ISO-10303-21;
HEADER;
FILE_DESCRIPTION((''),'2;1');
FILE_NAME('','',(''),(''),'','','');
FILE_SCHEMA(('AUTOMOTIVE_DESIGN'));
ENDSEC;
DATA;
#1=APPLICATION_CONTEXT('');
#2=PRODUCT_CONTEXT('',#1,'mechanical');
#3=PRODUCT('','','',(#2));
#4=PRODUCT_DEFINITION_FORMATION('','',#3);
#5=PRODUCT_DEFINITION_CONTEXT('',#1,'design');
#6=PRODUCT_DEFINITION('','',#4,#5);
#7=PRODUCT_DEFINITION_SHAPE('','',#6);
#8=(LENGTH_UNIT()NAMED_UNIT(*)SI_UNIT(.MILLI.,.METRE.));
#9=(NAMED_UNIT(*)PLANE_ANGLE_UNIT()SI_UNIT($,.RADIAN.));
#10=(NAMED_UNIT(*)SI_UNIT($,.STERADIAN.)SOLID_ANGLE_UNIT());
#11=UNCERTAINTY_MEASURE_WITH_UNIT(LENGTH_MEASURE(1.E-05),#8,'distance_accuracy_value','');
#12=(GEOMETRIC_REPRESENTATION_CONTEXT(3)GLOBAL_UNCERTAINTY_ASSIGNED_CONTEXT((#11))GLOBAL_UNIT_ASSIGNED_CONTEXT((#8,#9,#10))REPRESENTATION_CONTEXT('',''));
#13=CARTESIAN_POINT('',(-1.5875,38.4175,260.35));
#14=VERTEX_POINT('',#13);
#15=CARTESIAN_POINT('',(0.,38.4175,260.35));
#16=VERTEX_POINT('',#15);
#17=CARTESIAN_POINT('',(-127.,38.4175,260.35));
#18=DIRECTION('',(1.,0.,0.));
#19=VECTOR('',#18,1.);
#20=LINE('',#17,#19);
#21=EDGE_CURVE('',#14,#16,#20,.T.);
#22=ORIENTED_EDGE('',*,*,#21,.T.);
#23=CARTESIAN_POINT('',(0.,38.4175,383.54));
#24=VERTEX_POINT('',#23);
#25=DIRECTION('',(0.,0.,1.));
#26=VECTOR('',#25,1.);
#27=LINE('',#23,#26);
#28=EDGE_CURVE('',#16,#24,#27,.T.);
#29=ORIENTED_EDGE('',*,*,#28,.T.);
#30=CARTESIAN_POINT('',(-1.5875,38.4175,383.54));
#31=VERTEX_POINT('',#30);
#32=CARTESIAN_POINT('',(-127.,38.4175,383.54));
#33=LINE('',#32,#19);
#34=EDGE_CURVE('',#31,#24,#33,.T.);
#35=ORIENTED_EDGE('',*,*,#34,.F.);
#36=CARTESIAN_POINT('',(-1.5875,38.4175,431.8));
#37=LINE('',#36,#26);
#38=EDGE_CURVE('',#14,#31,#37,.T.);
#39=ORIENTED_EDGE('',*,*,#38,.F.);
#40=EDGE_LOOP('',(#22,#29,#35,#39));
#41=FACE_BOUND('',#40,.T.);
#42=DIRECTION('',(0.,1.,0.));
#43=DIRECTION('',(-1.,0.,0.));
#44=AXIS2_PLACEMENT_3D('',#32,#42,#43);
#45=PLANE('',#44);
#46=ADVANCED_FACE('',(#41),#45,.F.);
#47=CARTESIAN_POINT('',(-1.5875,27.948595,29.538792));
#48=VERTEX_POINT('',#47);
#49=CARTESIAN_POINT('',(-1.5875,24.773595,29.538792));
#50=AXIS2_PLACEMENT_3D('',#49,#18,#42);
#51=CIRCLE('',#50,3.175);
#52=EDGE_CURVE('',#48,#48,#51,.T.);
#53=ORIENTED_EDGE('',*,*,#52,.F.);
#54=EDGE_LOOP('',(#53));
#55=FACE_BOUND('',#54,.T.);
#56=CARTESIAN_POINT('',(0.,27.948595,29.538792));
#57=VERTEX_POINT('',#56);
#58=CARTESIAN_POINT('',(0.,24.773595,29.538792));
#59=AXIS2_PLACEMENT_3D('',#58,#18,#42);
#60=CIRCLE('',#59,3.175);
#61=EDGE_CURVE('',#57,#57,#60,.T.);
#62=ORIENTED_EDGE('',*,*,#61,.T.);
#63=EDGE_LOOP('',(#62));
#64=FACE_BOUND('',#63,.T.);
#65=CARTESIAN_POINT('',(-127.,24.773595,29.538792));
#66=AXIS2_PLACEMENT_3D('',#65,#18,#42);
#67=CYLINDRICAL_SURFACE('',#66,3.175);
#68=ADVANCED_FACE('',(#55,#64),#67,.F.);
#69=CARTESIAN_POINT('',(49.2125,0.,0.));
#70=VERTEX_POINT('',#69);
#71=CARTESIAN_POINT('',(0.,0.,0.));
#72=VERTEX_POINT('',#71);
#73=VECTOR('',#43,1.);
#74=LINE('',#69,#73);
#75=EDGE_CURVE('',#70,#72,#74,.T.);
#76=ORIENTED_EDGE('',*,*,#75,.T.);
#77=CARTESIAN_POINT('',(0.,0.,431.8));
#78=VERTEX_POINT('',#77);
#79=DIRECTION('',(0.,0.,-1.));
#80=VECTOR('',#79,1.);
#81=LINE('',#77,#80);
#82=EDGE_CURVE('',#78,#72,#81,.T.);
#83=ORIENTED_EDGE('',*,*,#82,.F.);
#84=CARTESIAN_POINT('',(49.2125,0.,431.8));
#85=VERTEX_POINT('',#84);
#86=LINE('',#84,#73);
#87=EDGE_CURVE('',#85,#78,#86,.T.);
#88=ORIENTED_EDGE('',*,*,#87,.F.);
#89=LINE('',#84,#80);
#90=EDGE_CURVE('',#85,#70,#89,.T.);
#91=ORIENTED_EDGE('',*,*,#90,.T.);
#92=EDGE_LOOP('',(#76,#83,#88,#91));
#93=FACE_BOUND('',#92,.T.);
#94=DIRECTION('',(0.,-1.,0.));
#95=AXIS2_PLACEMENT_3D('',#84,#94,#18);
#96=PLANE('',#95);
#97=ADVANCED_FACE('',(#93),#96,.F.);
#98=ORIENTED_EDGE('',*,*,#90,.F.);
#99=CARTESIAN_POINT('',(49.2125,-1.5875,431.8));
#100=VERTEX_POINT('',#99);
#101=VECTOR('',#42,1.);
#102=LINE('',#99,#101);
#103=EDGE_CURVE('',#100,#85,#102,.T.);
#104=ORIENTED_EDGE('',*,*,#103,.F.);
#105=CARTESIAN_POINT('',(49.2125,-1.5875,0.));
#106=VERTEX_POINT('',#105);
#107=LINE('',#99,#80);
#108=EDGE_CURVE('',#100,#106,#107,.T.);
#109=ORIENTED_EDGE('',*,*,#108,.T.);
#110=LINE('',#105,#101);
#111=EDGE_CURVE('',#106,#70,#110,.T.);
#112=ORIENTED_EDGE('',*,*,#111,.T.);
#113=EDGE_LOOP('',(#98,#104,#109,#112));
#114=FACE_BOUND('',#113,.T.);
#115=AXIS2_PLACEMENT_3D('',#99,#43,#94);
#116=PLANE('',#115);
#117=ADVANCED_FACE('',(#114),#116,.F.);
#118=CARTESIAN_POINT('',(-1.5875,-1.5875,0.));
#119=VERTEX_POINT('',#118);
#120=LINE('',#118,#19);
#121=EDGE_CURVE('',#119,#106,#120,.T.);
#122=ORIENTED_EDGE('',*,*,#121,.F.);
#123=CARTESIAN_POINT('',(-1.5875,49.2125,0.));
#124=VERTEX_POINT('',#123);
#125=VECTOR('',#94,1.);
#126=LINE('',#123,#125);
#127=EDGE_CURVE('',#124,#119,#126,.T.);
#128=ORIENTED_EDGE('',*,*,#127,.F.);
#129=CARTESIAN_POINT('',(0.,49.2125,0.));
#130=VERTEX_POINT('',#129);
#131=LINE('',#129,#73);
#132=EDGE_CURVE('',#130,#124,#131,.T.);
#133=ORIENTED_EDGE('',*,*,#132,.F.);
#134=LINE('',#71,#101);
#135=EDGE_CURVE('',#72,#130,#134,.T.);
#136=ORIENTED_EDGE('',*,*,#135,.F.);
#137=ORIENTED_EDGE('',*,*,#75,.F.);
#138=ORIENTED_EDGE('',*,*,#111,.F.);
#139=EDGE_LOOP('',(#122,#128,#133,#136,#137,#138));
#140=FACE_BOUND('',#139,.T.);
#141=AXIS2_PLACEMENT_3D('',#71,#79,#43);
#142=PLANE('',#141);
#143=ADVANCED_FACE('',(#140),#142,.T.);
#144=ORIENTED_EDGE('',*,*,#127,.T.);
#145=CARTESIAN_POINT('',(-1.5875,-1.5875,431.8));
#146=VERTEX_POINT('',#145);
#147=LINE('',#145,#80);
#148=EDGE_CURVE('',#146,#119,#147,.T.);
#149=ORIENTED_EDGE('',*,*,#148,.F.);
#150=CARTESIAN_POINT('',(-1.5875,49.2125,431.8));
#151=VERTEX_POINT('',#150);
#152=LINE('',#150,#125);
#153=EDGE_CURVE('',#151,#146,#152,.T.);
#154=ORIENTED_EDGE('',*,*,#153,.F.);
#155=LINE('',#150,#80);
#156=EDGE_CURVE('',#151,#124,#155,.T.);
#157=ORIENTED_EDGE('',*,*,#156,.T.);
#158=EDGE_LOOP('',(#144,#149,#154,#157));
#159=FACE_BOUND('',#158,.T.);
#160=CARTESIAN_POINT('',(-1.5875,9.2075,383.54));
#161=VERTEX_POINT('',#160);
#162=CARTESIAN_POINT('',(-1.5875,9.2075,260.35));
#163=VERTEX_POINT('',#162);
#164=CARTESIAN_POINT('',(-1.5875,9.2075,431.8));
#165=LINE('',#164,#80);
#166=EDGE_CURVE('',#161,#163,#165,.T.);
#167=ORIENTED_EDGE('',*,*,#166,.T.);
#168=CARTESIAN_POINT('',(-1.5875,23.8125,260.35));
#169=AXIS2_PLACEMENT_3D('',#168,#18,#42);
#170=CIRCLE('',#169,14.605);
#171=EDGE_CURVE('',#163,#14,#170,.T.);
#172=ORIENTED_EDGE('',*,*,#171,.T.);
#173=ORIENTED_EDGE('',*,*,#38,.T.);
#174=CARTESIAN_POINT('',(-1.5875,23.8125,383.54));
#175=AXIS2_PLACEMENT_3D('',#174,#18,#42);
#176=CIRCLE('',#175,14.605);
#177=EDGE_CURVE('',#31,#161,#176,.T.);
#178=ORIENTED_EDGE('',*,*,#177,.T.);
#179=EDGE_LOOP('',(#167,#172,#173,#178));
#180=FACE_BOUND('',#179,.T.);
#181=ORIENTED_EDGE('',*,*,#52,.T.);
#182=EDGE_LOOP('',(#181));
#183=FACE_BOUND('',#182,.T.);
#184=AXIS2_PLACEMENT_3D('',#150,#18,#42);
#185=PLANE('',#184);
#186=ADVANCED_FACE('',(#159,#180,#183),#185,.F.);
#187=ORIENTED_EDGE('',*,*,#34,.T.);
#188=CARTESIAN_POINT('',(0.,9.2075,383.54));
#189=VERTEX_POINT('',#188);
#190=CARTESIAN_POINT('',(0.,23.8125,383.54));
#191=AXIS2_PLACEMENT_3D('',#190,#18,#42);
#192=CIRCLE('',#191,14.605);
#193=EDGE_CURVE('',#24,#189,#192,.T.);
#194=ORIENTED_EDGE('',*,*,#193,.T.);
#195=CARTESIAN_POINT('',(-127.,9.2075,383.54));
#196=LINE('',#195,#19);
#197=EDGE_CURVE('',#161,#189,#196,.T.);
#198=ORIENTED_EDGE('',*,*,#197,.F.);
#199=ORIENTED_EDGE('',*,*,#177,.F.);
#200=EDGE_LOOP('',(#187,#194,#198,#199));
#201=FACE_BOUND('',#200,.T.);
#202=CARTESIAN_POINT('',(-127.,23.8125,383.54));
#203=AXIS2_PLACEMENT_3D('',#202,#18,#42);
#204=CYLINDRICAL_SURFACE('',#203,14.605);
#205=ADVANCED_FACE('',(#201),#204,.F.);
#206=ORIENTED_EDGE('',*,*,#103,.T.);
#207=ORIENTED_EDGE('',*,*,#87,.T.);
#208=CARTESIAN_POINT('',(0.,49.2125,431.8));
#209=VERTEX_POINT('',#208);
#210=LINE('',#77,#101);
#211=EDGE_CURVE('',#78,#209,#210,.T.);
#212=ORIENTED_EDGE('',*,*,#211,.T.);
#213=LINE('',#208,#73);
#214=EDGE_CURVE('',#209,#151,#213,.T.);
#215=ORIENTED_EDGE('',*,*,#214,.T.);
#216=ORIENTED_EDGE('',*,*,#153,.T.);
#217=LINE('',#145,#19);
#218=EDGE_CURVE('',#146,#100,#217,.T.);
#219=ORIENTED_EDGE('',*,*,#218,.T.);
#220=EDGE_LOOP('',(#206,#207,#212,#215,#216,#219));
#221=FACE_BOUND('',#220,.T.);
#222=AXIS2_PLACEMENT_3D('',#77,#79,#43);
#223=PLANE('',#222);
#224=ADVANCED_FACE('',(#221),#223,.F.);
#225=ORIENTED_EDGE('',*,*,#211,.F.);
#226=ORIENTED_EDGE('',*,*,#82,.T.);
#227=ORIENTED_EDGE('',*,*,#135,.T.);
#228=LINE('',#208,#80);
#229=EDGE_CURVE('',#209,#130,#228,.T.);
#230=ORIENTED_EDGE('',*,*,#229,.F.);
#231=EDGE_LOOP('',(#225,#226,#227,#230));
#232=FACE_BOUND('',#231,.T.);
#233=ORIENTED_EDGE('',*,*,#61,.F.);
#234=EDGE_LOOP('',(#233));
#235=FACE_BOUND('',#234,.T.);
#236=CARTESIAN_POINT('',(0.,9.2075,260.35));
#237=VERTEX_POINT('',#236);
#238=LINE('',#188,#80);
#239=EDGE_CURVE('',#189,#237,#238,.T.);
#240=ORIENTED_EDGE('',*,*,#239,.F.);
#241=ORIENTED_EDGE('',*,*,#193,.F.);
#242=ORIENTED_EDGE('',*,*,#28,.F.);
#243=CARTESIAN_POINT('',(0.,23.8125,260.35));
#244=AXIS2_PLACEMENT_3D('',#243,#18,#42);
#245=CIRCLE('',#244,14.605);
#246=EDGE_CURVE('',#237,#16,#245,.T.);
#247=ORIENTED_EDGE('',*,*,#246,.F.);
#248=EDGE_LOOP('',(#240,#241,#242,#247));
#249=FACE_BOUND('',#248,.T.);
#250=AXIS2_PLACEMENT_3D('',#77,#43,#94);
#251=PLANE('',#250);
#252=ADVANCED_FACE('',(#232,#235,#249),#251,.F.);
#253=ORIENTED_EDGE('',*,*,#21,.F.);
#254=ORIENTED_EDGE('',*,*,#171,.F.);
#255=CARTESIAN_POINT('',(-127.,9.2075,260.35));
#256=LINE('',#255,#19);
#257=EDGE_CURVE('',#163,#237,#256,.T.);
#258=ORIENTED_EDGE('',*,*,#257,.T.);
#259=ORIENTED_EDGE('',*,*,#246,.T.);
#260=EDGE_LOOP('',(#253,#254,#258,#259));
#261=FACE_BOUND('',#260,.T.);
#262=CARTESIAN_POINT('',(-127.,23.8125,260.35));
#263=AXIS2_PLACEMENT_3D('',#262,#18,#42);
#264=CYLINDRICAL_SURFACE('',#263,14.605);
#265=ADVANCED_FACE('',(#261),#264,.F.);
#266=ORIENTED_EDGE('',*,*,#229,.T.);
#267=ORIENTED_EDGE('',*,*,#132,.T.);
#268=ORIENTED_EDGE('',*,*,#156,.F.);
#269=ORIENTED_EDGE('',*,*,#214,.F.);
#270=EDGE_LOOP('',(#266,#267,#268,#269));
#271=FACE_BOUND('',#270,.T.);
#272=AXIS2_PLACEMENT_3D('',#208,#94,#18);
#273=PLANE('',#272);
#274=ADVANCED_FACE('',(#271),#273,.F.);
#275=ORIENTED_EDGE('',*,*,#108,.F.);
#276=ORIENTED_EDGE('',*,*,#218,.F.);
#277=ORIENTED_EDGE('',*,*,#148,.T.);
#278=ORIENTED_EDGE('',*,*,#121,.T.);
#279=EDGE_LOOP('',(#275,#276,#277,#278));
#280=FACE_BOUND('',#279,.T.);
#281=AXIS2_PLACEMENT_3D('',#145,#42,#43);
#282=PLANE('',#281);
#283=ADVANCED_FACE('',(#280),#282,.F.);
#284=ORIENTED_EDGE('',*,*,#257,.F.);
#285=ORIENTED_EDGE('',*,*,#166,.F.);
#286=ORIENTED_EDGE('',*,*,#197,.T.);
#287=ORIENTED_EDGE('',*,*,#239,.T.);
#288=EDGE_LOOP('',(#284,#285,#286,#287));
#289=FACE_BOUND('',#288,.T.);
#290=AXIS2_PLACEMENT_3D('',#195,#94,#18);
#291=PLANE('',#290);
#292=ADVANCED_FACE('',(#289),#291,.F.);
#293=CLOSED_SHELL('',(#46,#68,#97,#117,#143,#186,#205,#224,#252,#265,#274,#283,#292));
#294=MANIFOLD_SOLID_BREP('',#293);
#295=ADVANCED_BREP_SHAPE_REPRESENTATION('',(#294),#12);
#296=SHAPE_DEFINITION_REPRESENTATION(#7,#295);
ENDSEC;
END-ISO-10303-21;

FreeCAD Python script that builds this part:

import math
import FreeCAD as App
import Part
import Sketcher
from FreeCAD import Vector
Q = App.Units.Quantity


def add_polygon(sketch, points):
    """Adds a closed chain of lines whose ends are joined by coincident constraints."""
    first, n = sketch.GeometryCount, len(points)
    for a, b in zip(points, points[1:] + points[:1]):
        sketch.addGeometry(Part.LineSegment(App.Vector(*a, 0), App.Vector(*b, 0)), False)
    for i in range(n):
        sketch.addConstraint(Sketcher.Constraint("Coincident", first + i, 2, first + (i + 1) % n, 1))

doc = App.newDocument("Part")
body = doc.addObject("PartDesign::Body", "Body")

# Sketch on XY plane
sketch1 = body.newObject("Sketcher::SketchObject", "Sketch")
sketch1.AttachmentSupport = (doc.getObject("XY_Plane"), [""])
sketch1.MapMode = "FlatFace"
add_polygon(sketch1, [(0, 0), (0, 49.2), (-1.6, 49.2), (-1.6, -1.6), (49.2, -1.6), (49.2, 0)])  # lines 0-5
sketch1.addConstraint([
    Sketcher.Constraint("Vertical", 0),
    Sketcher.Constraint("Horizontal", 1),
    Sketcher.Constraint("Vertical", 2),
    Sketcher.Constraint("Horizontal", 3),
    Sketcher.Constraint("Vertical", 4),
    Sketcher.Constraint("Horizontal", 5),
    Sketcher.Constraint("Coincident", 5, 2, -1, 1),
    Sketcher.Constraint("Equal", 5, 0),
    Sketcher.Constraint("Equal", 3, 2),
    Sketcher.Constraint("DistanceX", 3, 1, 3, 2, Q("2 in")),
    Sketcher.Constraint("DistanceX", 1, 2, 1, 1, Q("0.0625 in")),
])
pad1 = body.newObject("PartDesign::Pad", "Pad")
pad1.Profile = sketch1
pad1.Length = Q("17 in")

# Sketch on YZ plane
sketch2 = body.newObject("Sketcher::SketchObject", "Sketch001")
sketch2.AttachmentSupport = (doc.getObject("YZ_Plane"), [""])
sketch2.MapMode = "FlatFace"
sketch2.addGeometry([
    Part.LineSegment(Vector(38, 260, 0), Vector(38, 384, 0)),
    Part.ArcOfCircle(Part.Circle(Vector(24, 384, 0), Vector(0, 0, 1), 15), math.radians(0), math.radians(180)),
    Part.LineSegment(Vector(9, 384, 0), Vector(9, 260, 0)),
    Part.ArcOfCircle(Part.Circle(Vector(24, 260, 0), Vector(0, 0, 1), 15), math.radians(180), math.radians(360)),
], False)
sketch2.addConstraint([
    Sketcher.Constraint("Tangent", 0, 2, 1, 1),
    Sketcher.Constraint("Tangent", 1, 2, 2, 1),
    Sketcher.Constraint("Tangent", 2, 2, 3, 1),
    Sketcher.Constraint("Tangent", 3, 2, 0, 1),
    Sketcher.Constraint("Vertical", 0),
    Sketcher.Constraint("Vertical", 2),
    Sketcher.Constraint("Radius", 1, Q("0.575 in")),
    Sketcher.Constraint("DistanceY", 0, 1, 0, 2, Q("4.85 in")),
    Sketcher.Constraint("DistanceY", -1, 1, 1, 3, Q("15.1 in")),
    Sketcher.Constraint("DistanceX", -1, 1, 1, 3, Q("0.9375 in")),
])
pocket1 = body.newObject("PartDesign::Pocket", "Pocket")
pocket1.Profile = sketch2
pocket1.Length = Q("5 in")

# Sketch on YZ plane
sketch3 = body.newObject("Sketcher::SketchObject", "Sketch002")
sketch3.AttachmentSupport = (doc.getObject("YZ_Plane"), [""])
sketch3.MapMode = "FlatFace"
sketch3.addGeometry(Part.Circle(Vector(24.8, 29.5, 0), Vector(0, 0, 1), 3.2), False)
sketch3.addConstraint([
    Sketcher.Constraint("Diameter", 0, Q("0.25 in")),
    Sketcher.Constraint("DistanceX", -1, 1, 0, 3, 24.773595),
    Sketcher.Constraint("DistanceY", -1, 1, 0, 3, 29.538792),
])
pocket2 = body.newObject("PartDesign::Pocket", "Pocket001")
pocket2.Profile = sketch3
pocket2.Length = Q("5 in")

doc.recompute()
